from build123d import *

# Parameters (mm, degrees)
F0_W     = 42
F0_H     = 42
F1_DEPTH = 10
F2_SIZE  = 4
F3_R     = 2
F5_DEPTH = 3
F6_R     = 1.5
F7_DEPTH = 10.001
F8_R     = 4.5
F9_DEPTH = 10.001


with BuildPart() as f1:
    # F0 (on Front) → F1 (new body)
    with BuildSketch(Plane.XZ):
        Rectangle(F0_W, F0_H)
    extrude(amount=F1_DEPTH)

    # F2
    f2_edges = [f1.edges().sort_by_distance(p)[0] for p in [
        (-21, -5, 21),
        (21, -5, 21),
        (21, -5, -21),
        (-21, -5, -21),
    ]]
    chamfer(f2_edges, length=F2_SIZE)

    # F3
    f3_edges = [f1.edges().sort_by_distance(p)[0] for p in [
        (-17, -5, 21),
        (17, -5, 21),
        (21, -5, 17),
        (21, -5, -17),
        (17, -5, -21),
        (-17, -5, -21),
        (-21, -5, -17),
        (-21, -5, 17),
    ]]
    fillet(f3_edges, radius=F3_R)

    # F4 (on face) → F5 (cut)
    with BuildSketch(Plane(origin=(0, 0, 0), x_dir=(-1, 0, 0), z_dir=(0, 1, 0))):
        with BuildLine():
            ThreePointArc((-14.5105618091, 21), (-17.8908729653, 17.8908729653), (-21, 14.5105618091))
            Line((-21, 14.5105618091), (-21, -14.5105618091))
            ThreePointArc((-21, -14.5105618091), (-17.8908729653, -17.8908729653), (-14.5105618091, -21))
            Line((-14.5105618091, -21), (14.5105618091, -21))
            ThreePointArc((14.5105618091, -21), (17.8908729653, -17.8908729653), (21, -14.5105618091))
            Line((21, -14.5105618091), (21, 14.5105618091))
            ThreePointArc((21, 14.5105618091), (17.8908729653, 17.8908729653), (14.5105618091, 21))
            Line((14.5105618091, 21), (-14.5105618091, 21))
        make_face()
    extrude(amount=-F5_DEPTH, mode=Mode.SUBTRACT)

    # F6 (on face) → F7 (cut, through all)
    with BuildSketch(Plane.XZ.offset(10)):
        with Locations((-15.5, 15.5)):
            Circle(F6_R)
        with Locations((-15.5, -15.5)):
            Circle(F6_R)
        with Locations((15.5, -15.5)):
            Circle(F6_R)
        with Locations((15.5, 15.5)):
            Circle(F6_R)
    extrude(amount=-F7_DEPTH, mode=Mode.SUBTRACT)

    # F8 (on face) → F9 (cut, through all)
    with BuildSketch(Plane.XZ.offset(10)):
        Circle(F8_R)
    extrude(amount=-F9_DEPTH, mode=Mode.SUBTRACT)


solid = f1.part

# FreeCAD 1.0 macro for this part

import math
import FreeCAD as App
import Part
import Sketcher

V = App.Vector
Q = App.Units.Quantity


def edges_at(feature, points):
    """Names of the edges that pass closest to the given points."""
    edges = feature.Shape.Edges
    near = lambda p: min(range(len(edges)), key=lambda i: edges[i].distToShape(Part.Vertex(*p))[0])
    return sorted({f"Edge{near(p) + 1}" for p in points})

doc = App.newDocument("Part")
body = doc.addObject("PartDesign::Body", "Body")

# Sketch on XZ plane
sketch1 = doc.addObject("Sketcher::SketchObject", "Sketch")
body.addObject(sketch1)
sketch1.AttachmentSupport = (doc.XZ_Plane, [""])
sketch1.MapMode = "FlatFace"
sketch1.addGeometry(Part.LineSegment(V(-21, 21, 0), V(-21, -21, 0)), False)
sketch1.addGeometry(Part.LineSegment(V(-21, -21, 0), V(21, -21, 0)), False)
sketch1.addGeometry(Part.LineSegment(V(21, -21, 0), V(21, 21, 0)), False)
sketch1.addGeometry(Part.LineSegment(V(21, 21, 0), V(-21, 21, 0)), False)
sketch1.addConstraint(Sketcher.Constraint("Coincident", 0, 2, 1, 1))
sketch1.addConstraint(Sketcher.Constraint("Coincident", 1, 2, 2, 1))
sketch1.addConstraint(Sketcher.Constraint("Coincident", 2, 2, 3, 1))
sketch1.addConstraint(Sketcher.Constraint("Coincident", 3, 2, 0, 1))
sketch1.addConstraint(Sketcher.Constraint("Vertical", 0))
sketch1.addConstraint(Sketcher.Constraint("Horizontal", 1))
sketch1.addConstraint(Sketcher.Constraint("Vertical", 2))
sketch1.addConstraint(Sketcher.Constraint("Horizontal", 3))
sketch1.addConstraint(Sketcher.Constraint("Symmetric", 0, 2, 2, 2, -1, 1))
sketch1.addConstraint(Sketcher.Constraint("Equal", 3, 0))
sketch1.addConstraint(Sketcher.Constraint("DistanceX", 1, 1, 1, 2, Q("42 mm")))
pad1 = doc.addObject("PartDesign::Pad", "Pad")
body.addObject(pad1)
pad1.Profile = sketch1
pad1.Length = 10
doc.recompute()

chamfer = doc.addObject("PartDesign::Chamfer", "Chamfer")
body.addObject(chamfer)
chamfer.Base = (pad1, edges_at(pad1, [
    (-21, -5, 21),
    (21, -5, 21),
    (21, -5, -21),
    (-21, -5, -21),
]))
chamfer.Size = 4
doc.recompute()

fillet = doc.addObject("PartDesign::Fillet", "Fillet")
body.addObject(fillet)
fillet.Base = (chamfer, edges_at(chamfer, [
    (-17, -5, 21),
    (17, -5, 21),
    (21, -5, 17),
    (21, -5, -17),
    (17, -5, -21),
    (-17, -5, -21),
    (-21, -5, -17),
    (-21, -5, 17),
]))
fillet.Radius = 2

# Sketch on XZ plane
sketch2 = doc.addObject("Sketcher::SketchObject", "Sketch001")
body.addObject(sketch2)
sketch2.AttachmentSupport = (doc.XZ_Plane, [""])
sketch2.MapMode = "FlatFace"
sketch2.addGeometry(Part.ArcOfCircle(Part.Circle(V(-21, -21, 0), V(0, 0, 1), 55), math.radians(40.21), math.radians(49.79)), False)
sketch2.addGeometry(Part.LineSegment(V(21, 15, 0), V(21, -15, 0)), False)
sketch2.addGeometry(Part.ArcOfCircle(Part.Circle(V(-21, 21, 0), V(0, 0, 1), 55), math.radians(-49.79), math.radians(-40.21)), False)
sketch2.addGeometry(Part.LineSegment(V(15, -21, 0), V(-15, -21, 0)), False)
sketch2.addGeometry(Part.ArcOfCircle(Part.Circle(V(21, 21, 0), V(0, 0, 1), 55), math.radians(-139.79), math.radians(-130.21)), False)
sketch2.addGeometry(Part.LineSegment(V(-21, -15, 0), V(-21, 15, 0)), False)
sketch2.addGeometry(Part.ArcOfCircle(Part.Circle(V(21, -21, 0), V(0, 0, 1), 55), math.radians(130.21), math.radians(139.79)), False)
sketch2.addGeometry(Part.LineSegment(V(-15, 21, 0), V(15, 21, 0)), False)
sketch2.addConstraint(Sketcher.Constraint("Coincident", 0, 1, 1, 1))
sketch2.addConstraint(Sketcher.Constraint("Coincident", 1, 2, 2, 2))
sketch2.addConstraint(Sketcher.Constraint("Coincident", 2, 1, 3, 1))
sketch2.addConstraint(Sketcher.Constraint("Coincident", 3, 2, 4, 2))
sketch2.addConstraint(Sketcher.Constraint("Coincident", 4, 1, 5, 1))
sketch2.addConstraint(Sketcher.Constraint("Coincident", 5, 2, 6, 2))
sketch2.addConstraint(Sketcher.Constraint("Coincident", 6, 1, 7, 1))
sketch2.addConstraint(Sketcher.Constraint("Coincident", 7, 2, 0, 2))
sketch2.addConstraint(Sketcher.Constraint("Vertical", 1))
sketch2.addConstraint(Sketcher.Constraint("Horizontal", 3))
sketch2.addConstraint(Sketcher.Constraint("Vertical", 5))
sketch2.addConstraint(Sketcher.Constraint("Horizontal", 7))
sketch2.addConstraint(Sketcher.Constraint("Equal", 0, 2))
sketch2.addConstraint(Sketcher.Constraint("Equal", 2, 4))
sketch2.addConstraint(Sketcher.Constraint("Equal", 4, 6))
sketch2.addConstraint(Sketcher.Constraint("Symmetric", 0, 3, 4, 3, -1, 1))
sketch2.addConstraint(Sketcher.Constraint("Symmetric", 2, 3, 6, 3, -1, 1))
sketch2.addConstraint(Sketcher.Constraint("Symmetric", 2, 3, 4, 3, -2))
sketch2.addConstraint(Sketcher.Constraint("Horizontal", 6, 3, 2, 1))
sketch2.addConstraint(Sketcher.Constraint("Horizontal", 1, 2, 4, 1))
sketch2.addConstraint(Sketcher.Constraint("Horizontal", 4, 3, 6, 1))
sketch2.addConstraint(Sketcher.Constraint("Vertical", 6, 3, 0, 1))
sketch2.addConstraint(Sketcher.Constraint("Equal", 7, 1))
sketch2.addConstraint(Sketcher.Constraint("Radius", 0, Q("55 mm")))
sketch2.addConstraint(Sketcher.Constraint("DistanceX", 0, 3, -1, 1, Q("21 mm")))
pocket1 = doc.addObject("PartDesign::Pocket", "Pocket")
body.addObject(pocket1)
pocket1.Profile = sketch2
pocket1.Length = 3
pocket1.Reversed = True

# Sketch on XZ plane
sketch3 = doc.addObject("Sketcher::SketchObject", "Sketch002")
body.addObject(sketch3)
sketch3.AttachmentSupport = (doc.XZ_Plane, [""])
sketch3.MapMode = "FlatFace"
sketch3.AttachmentOffset = App.Placement(V(0, 0, 10), App.Rotation())
sketch3.addGeometry(Part.Circle(V(-15.5, 15.5, 0), V(0, 0, 1), 1.5), False)
sketch3.addGeometry(Part.Circle(V(-15.5, -15.5, 0), V(0, 0, 1), 1.5), False)
sketch3.addGeometry(Part.Circle(V(15.5, -15.5, 0), V(0, 0, 1), 1.5), False)
sketch3.addGeometry(Part.Circle(V(15.5, 15.5, 0), V(0, 0, 1), 1.5), False)
sketch3.addConstraint(Sketcher.Constraint("Equal", 0, 1))
sketch3.addConstraint(Sketcher.Constraint("Equal", 1, 2))
sketch3.addConstraint(Sketcher.Constraint("Equal", 2, 3))
sketch3.addConstraint(Sketcher.Constraint("Symmetric", 0, 3, 2, 3, -1, 1))
sketch3.addConstraint(Sketcher.Constraint("Symmetric", 1, 3, 3, 3, -1, 1))
sketch3.addConstraint(Sketcher.Constraint("Symmetric", 1, 3, 2, 3, -2))
sketch3.addConstraint(Sketcher.Constraint("Diameter", 0, Q("3 mm")))
sketch3.addConstraint(Sketcher.Constraint("DistanceY", 1, 3, 0, 3, Q("31 mm")))
sketch3.addConstraint(Sketcher.Constraint("DistanceX", 1, 3, 2, 3, Q("31 mm")))
pocket2 = doc.addObject("PartDesign::Pocket", "Pocket001")
body.addObject(pocket2)
pocket2.Profile = sketch3
pocket2.Type = "ThroughAll"

# Sketch on XZ plane
sketch4 = doc.addObject("Sketcher::SketchObject", "Sketch003")
body.addObject(sketch4)
sketch4.AttachmentSupport = (doc.XZ_Plane, [""])
sketch4.MapMode = "FlatFace"
sketch4.AttachmentOffset = App.Placement(V(0, 0, 10), App.Rotation())
sketch4.addGeometry(Part.Circle(V(0, 0, 0), V(0, 0, 1), 4.5), False)
sketch4.addConstraint(Sketcher.Constraint("Coincident", 0, 3, -1, 1))
sketch4.addConstraint(Sketcher.Constraint("Diameter", 0, Q("9 mm")))
pocket3 = doc.addObject("PartDesign::Pocket", "Pocket002")
body.addObject(pocket3)
pocket3.Profile = sketch4
pocket3.Type = "ThroughAll"

doc.recompute()
